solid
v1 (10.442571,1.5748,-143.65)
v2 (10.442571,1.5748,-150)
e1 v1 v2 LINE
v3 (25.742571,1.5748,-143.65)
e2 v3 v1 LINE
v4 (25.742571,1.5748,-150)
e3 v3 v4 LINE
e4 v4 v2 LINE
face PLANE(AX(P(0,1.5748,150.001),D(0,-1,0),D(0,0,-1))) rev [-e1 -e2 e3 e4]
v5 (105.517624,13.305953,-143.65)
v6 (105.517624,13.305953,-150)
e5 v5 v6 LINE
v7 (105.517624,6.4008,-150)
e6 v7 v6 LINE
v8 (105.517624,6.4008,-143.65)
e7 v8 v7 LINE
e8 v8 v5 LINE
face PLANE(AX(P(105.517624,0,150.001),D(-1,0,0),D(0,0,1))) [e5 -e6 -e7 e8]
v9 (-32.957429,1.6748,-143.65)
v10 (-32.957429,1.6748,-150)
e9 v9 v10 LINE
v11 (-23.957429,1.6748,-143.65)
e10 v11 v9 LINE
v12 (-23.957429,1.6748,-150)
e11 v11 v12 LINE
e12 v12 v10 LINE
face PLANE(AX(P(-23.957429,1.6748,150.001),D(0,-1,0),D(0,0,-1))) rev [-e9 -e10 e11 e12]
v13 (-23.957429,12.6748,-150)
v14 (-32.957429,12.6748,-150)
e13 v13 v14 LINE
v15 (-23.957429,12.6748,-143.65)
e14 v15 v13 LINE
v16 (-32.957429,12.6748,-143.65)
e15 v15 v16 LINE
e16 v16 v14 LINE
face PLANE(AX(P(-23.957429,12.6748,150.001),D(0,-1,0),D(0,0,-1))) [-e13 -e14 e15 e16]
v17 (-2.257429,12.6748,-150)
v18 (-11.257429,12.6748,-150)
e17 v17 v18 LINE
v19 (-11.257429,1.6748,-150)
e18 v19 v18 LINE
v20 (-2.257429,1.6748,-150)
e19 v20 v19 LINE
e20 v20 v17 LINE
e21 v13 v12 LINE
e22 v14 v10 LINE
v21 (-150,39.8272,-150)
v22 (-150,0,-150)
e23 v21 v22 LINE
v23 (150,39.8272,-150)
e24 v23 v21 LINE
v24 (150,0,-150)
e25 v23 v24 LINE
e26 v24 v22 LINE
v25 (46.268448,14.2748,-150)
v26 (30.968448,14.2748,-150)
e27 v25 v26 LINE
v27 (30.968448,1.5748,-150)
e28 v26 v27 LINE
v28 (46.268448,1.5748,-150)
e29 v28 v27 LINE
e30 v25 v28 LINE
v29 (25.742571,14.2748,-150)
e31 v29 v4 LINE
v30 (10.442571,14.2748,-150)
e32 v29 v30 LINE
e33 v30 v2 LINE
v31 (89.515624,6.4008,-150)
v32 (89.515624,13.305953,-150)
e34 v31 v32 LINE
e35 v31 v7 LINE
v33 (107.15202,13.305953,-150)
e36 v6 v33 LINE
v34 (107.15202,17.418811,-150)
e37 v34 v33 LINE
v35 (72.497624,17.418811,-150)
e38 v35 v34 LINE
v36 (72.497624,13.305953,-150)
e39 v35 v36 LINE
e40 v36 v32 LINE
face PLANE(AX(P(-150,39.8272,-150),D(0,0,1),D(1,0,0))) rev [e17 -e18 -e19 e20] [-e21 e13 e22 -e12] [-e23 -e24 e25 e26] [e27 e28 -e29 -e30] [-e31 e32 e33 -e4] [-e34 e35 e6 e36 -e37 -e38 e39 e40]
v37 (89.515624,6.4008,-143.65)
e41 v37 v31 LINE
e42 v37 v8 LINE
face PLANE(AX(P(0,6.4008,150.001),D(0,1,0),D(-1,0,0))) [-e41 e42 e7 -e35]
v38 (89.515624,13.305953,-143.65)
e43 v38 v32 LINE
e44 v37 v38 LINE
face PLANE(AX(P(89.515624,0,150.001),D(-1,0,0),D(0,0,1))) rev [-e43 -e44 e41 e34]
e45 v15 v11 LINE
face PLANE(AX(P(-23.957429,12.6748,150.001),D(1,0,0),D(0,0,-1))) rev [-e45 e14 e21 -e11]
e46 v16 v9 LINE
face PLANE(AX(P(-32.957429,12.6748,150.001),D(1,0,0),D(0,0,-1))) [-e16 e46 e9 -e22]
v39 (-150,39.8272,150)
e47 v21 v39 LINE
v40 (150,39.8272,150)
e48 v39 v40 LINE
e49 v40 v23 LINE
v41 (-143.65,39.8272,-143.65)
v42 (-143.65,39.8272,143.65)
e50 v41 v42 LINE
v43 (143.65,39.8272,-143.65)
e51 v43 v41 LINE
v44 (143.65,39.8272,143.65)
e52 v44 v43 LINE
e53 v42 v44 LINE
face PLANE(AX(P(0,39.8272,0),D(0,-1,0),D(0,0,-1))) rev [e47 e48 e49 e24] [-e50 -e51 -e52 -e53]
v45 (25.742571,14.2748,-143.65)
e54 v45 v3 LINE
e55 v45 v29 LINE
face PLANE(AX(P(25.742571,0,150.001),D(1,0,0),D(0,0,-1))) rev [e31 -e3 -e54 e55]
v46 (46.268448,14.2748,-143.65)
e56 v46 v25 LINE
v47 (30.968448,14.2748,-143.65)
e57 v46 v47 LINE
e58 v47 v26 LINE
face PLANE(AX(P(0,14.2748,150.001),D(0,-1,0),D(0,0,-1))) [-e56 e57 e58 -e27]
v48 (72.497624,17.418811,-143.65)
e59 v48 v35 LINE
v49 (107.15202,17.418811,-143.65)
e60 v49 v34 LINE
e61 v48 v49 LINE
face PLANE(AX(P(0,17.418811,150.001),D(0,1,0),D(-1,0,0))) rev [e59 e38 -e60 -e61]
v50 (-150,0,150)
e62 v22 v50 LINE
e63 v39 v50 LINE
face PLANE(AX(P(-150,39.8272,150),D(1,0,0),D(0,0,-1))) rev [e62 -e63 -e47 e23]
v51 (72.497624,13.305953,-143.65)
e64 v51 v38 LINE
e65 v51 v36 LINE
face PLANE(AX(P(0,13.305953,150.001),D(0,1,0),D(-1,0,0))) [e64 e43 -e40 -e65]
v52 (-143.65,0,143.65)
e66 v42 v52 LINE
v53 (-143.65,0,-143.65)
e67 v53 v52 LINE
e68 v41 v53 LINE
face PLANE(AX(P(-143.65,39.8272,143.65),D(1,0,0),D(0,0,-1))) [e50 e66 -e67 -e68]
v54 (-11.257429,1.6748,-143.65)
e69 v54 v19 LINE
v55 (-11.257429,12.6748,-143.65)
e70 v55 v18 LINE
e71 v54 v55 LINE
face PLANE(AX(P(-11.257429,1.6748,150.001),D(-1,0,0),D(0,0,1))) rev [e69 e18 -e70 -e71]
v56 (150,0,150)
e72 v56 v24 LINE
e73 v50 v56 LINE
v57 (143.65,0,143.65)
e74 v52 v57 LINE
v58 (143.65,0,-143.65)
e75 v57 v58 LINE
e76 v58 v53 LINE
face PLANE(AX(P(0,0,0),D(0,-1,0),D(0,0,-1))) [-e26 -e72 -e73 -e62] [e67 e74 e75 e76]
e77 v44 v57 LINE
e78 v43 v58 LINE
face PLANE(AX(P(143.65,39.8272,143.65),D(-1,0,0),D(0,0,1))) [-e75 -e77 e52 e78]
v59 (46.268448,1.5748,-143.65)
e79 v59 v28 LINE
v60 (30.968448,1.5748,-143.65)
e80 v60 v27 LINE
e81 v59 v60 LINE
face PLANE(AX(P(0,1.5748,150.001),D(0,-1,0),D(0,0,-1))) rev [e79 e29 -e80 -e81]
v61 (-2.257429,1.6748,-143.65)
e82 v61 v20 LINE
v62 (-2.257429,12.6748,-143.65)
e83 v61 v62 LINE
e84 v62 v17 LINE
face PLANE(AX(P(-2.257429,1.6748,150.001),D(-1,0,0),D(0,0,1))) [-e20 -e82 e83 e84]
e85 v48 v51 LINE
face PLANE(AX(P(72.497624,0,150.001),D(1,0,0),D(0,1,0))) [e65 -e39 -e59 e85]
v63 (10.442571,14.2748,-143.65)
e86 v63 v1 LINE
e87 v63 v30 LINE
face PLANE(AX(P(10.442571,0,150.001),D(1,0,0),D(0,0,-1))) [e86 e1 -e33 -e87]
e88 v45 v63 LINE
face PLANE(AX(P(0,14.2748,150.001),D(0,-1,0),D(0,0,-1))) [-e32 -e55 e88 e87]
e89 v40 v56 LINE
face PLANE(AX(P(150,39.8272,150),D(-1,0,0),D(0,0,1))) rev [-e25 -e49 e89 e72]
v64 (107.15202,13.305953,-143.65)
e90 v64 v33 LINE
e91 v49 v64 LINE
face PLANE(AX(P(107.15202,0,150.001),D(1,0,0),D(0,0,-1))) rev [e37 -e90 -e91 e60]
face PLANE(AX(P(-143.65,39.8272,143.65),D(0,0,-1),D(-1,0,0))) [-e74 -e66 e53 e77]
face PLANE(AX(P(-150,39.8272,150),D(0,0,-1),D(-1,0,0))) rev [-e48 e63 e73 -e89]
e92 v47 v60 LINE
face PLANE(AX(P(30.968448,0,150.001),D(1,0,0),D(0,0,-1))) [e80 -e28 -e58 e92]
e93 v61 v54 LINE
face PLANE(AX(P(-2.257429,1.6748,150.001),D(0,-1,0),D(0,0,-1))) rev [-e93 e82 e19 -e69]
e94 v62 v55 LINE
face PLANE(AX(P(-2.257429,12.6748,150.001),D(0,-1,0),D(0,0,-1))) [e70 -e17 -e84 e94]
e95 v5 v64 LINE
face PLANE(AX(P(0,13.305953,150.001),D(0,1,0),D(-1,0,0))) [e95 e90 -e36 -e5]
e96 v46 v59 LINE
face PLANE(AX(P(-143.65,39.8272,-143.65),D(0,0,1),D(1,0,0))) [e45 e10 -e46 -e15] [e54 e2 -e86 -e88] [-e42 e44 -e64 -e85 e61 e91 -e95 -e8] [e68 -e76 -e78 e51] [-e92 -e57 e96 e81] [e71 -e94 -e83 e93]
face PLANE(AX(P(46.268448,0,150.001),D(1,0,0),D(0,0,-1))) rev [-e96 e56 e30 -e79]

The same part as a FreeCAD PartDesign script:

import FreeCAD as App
import Part
import Sketcher
from FreeCAD import Vector


def add_polygon(sketch, points):
    """Adds a closed chain of lines whose ends are joined by coincident constraints."""
    first, n = sketch.GeometryCount, len(points)
    for a, b in zip(points, points[1:] + points[:1]):
        sketch.addGeometry(Part.LineSegment(App.Vector(*a, 0), App.Vector(*b, 0)), False)
    for i in range(n):
        sketch.addConstraint(Sketcher.Constraint("Coincident", first + i, 2, first + (i + 1) % n, 1))

doc = App.newDocument("Part")
body = doc.addObject("PartDesign::Body", "Body")

# Sketch on XZ plane
sketch1 = body.newObject("Sketcher::SketchObject", "Sketch")
sketch1.AttachmentSupport = (doc.getObject("XZ_Plane"), [""])
sketch1.MapMode = "FlatFace"
add_polygon(sketch1, [(-150, -150), (-150, 150), (150, 150), (150, -150)])  # lines 0-3
add_polygon(sketch1, [(144, 144), (-144, 144), (-144, -144), (144, -144)])  # lines 4-7
sketch1.addConstraint(Sketcher.Constraint("Vertical", 0))
sketch1.addConstraint(Sketcher.Constraint("Horizontal", 1))
sketch1.addConstraint(Sketcher.Constraint("Vertical", 2))
sketch1.addConstraint(Sketcher.Constraint("Horizontal", 3))
sketch1.addConstraint(Sketcher.Constraint("Horizontal", 4))
sketch1.addConstraint(Sketcher.Constraint("Vertical", 5))
sketch1.addConstraint(Sketcher.Constraint("Horizontal", 6))
sketch1.addConstraint(Sketcher.Constraint("Vertical", 7))
sketch1.addConstraint(Sketcher.Constraint("Symmetric", 0, 2, 2, 2, -1, 1))
sketch1.addConstraint(Sketcher.Constraint("Symmetric", 4, 2, 6, 2, -1, 1))
sketch1.addConstraint(Sketcher.Constraint("Equal", 3, 0))
sketch1.addConstraint(Sketcher.Constraint("Equal", 6, 5))
sketch1.addConstraint(Sketcher.Constraint("DistanceX", 1, 1, 1, 2, 300.0))
sketch1.addConstraint(Sketcher.Constraint("DistanceX", 4, 2, 4, 1, 287.3))
pad1 = body.newObject("PartDesign::Pad", "Pad")
pad1.Profile = sketch1
pad1.Length = 39.8272
pad1.Reversed = True

# Sketch on XY plane
sketch2 = body.newObject("Sketcher::SketchObject", "Sketch001")
sketch2.AttachmentSupport = (doc.getObject("XY_Plane"), [""])
sketch2.MapMode = "FlatFace"
sketch2.AttachmentOffset = App.Placement(Vector(0, 0, -150), App.Rotation())
add_polygon(sketch2, [(72.5, 13.3), (72.5, 17.4), (107.2, 17.4), (107.2, 13.3), (105.5, 13.3), (105.5, 6.4), (89.5, 6.4), (89.5, 13.3)])  # lines 0-7
sketch2.addConstraint(Sketcher.Constraint("Vertical", 0))
sketch2.addConstraint(Sketcher.Constraint("Horizontal", 1))
sketch2.addConstraint(Sketcher.Constraint("Vertical", 2))
sketch2.addConstraint(Sketcher.Constraint("Horizontal", 3))
sketch2.addConstraint(Sketcher.Constraint("Vertical", 4))
sketch2.addConstraint(Sketcher.Constraint("Horizontal", 5))
sketch2.addConstraint(Sketcher.Constraint("Vertical", 6))
sketch2.addConstraint(Sketcher.Constraint("Horizontal", 7))
sketch2.addConstraint(Sketcher.Constraint("Horizontal", 3, 2, 6, 2))
sketch2.addConstraint(Sketcher.Constraint("DistanceX", 5, 2, 5, 1, 16.002))
sketch2.addConstraint(Sketcher.Constraint("DistanceX", 7, 2, 7, 1, 17.018))
sketch2.addConstraint(Sketcher.Constraint("DistanceY", -1, 1, 4, 2, 6.4008))
sketch2.addConstraint(Sketcher.Constraint("DistanceX", 1, 1, 1, 2, 34.654396))
sketch2.addConstraint(Sketcher.Constraint("DistanceY", 0, 1, 0, 2, 4.112857))
sketch2.addConstraint(Sketcher.Constraint("DistanceY", 4, 2, 4, 1, 6.905153))
sketch2.addConstraint(Sketcher.Constraint("DistanceX", -1, 1, 1, 2, 107.15202))
pocket1 = body.newObject("PartDesign::Pocket", "Pocket")
pocket1.Profile = sketch2
pocket1.Type = "UpToFirst"
pocket1.Reversed = True

# Sketch on XY plane
sketch3 = body.newObject("Sketcher::SketchObject", "Sketch002")
sketch3.AttachmentSupport = (doc.getObject("XY_Plane"), [""])
sketch3.MapMode = "FlatFace"
sketch3.AttachmentOffset = App.Placement(Vector(0, 0, -150), App.Rotation())
add_polygon(sketch3, [(46, 14), (46, 2), (31, 2), (31, 14)])  # lines 0-3
sketch3.addConstraint(Sketcher.Constraint("Vertical", 0))
sketch3.addConstraint(Sketcher.Constraint("Horizontal", 1))
sketch3.addConstraint(Sketcher.Constraint("Vertical", 2))
sketch3.addConstraint(Sketcher.Constraint("Horizontal", 3))
sketch3.addConstraint(Sketcher.Constraint("DistanceX", 1, 2, 1, 1, 15.3))
sketch3.addConstraint(Sketcher.Constraint("DistanceY", 0, 2, 0, 1, 12.7))
sketch3.addConstraint(Sketcher.Constraint("DistanceY", -1, 1, 0, 2, 1.5748))
sketch3.addConstraint(Sketcher.Constraint("DistanceX", -1, 1, 0, 2, 46.268448))
pocket2 = body.newObject("PartDesign::Pocket", "Pocket001")
pocket2.Profile = sketch3
pocket2.Type = "UpToFirst"
pocket2.Reversed = True

# Sketch on XY plane
sketch4 = body.newObject("Sketcher::SketchObject", "Sketch003")
sketch4.AttachmentSupport = (doc.getObject("XY_Plane"), [""])
sketch4.MapMode = "FlatFace"
sketch4.AttachmentOffset = App.Placement(Vector(0, 0, -150), App.Rotation())
add_polygon(sketch4, [(26, 14), (26, 2), (10, 2), (10, 14)])  # lines 0-3
sketch4.addConstraint(Sketcher.Constraint("Vertical", 0))
sketch4.addConstraint(Sketcher.Constraint("Horizontal", 1))
sketch4.addConstraint(Sketcher.Constraint("Vertical", 2))
sketch4.addConstraint(Sketcher.Constraint("Horizontal", 3))
sketch4.addConstraint(Sketcher.Constraint("DistanceX", 1, 2, 1, 1, 15.3))
sketch4.addConstraint(Sketcher.Constraint("DistanceY", 0, 2, 0, 1, 12.7))
sketch4.addConstraint(Sketcher.Constraint("DistanceY", -1, 1, 0, 2, 1.5748))
sketch4.addConstraint(Sketcher.Constraint("DistanceX", -1, 1, 0, 2, 25.742571))
pocket3 = body.newObject("PartDesign::Pocket", "Pocket002")
pocket3.Profile = sketch4
pocket3.Type = "UpToFirst"
pocket3.Reversed = True

# Sketch on XY plane
sketch5 = body.newObject("Sketcher::SketchObject", "Sketch004")
sketch5.AttachmentSupport = (doc.getObject("XY_Plane"), [""])
sketch5.MapMode = "FlatFace"
sketch5.AttachmentOffset = App.Placement(Vector(0, 0, -150), App.Rotation())
add_polygon(sketch5, [(-2, 13), (-2, 2), (-11, 2), (-11, 13)])  # lines 0-3
sketch5.addConstraint(Sketcher.Constraint("Vertical", 0))
sketch5.addConstraint(Sketcher.Constraint("Horizontal", 1))
sketch5.addConstraint(Sketcher.Constraint("Vertical", 2))
sketch5.addConstraint(Sketcher.Constraint("Horizontal", 3))
sketch5.addConstraint(Sketcher.Constraint("DistanceX", 1, 2, 1, 1, 9.0))
sketch5.addConstraint(Sketcher.Constraint("DistanceY", 0, 2, 0, 1, 11.0))
sketch5.addConstraint(Sketcher.Constraint("DistanceY", -1, 1, 0, 2, 1.6748))
sketch5.addConstraint(Sketcher.Constraint("DistanceX", 0, 2, -1, 1, 2.257429))
pocket4 = body.newObject("PartDesign::Pocket", "Pocket003")
pocket4.Profile = sketch5
pocket4.Type = "UpToFirst"
pocket4.Reversed = True

# Sketch on XY plane
sketch6 = body.newObject("Sketcher::SketchObject", "Sketch005")
sketch6.AttachmentSupport = (doc.getObject("XY_Plane"), [""])
sketch6.MapMode = "FlatFace"
sketch6.AttachmentOffset = App.Placement(Vector(0, 0, -150), App.Rotation())
add_polygon(sketch6, [(-24, 13), (-24, 2), (-33, 2), (-33, 13)])  # lines 0-3
sketch6.addConstraint(Sketcher.Constraint("Vertical", 0))
sketch6.addConstraint(Sketcher.Constraint("Horizontal", 1))
sketch6.addConstraint(Sketcher.Constraint("Vertical", 2))
sketch6.addConstraint(Sketcher.Constraint("Horizontal", 3))
sketch6.addConstraint(Sketcher.Constraint("DistanceX", 1, 2, 1, 1, 9.0))
sketch6.addConstraint(Sketcher.Constraint("DistanceY", 0, 2, 0, 1, 11.0))
sketch6.addConstraint(Sketcher.Constraint("DistanceY", -1, 1, 0, 2, 1.6748))
sketch6.addConstraint(Sketcher.Constraint("DistanceX", 0, 2, -1, 1, 23.957429))
pocket5 = body.newObject("PartDesign::Pocket", "Pocket004")
pocket5.Profile = sketch6
pocket5.Type = "UpToFirst"
pocket5.Reversed = True

doc.recompute()
